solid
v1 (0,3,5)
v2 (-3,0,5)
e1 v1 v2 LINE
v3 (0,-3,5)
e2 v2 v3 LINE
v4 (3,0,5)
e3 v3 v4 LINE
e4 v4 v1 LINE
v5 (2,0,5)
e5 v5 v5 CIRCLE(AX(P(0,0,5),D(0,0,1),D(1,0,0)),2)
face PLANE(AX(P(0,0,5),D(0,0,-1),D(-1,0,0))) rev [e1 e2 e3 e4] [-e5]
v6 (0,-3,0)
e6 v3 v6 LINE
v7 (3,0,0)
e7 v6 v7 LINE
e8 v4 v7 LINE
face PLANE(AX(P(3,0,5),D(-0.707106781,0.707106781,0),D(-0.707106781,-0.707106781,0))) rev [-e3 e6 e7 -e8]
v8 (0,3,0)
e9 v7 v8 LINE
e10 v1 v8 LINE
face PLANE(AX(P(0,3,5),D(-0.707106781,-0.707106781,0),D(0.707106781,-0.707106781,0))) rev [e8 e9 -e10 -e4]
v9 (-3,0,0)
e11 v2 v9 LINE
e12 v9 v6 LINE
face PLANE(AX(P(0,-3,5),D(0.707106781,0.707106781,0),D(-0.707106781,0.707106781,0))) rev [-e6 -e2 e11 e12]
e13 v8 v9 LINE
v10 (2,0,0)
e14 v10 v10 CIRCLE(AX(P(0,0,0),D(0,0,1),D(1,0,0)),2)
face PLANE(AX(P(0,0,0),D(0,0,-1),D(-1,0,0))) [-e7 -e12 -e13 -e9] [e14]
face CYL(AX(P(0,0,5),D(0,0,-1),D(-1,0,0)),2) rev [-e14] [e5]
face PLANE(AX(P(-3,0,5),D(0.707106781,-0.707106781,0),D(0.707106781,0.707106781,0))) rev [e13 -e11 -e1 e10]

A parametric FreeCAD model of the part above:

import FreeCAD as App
import Part
import Sketcher
from FreeCAD import Vector
Q = App.Units.Quantity

doc = App.newDocument("Part")
body = doc.addObject("PartDesign::Body", "Body")

# Sketch on XY plane
sketch1 = body.newObject("Sketcher::SketchObject", "Sketch")
sketch1.AttachmentSupport = (doc.getObject("XY_Plane"), [""])
sketch1.MapMode = "FlatFace"
sketch1.addGeometry([
    Part.LineSegment(Vector(3, 0, 0), Vector(0, 3, 0)),  # 0
    Part.LineSegment(Vector(0, 3, 0), Vector(-3, 0, 0)),  # 1
    Part.LineSegment(Vector(-3, 0, 0), Vector(0, -3, 0)),  # 2
    Part.LineSegment(Vector(0, -3, 0), Vector(3, 0, 0)),  # 3
    Part.Circle(Vector(0, 0, 0), Vector(0, 0, 1), 2),  # 4
], False)
sketch1.addConstraint([
    Sketcher.Constraint("Coincident", 0, 2, 1, 1),
    Sketcher.Constraint("Coincident", 1, 2, 2, 1),
    Sketcher.Constraint("Coincident", 2, 2, 3, 1),
    Sketcher.Constraint("Coincident", 3, 2, 0, 1),
    Sketcher.Constraint("Coincident", 4, 3, -1, 1),
    Sketcher.Constraint("Symmetric", 0, 2, 2, 2, -1, 1),
    Sketcher.Constraint("Symmetric", 1, 2, 3, 2, -1, 1),
    Sketcher.Constraint("PointOnObject", 0, 2, -2),
    Sketcher.Constraint("PointOnObject", 1, 2, -1),
    Sketcher.Constraint("Perpendicular", 0, 1),
    Sketcher.Constraint("Diameter", 4, Q("4 mm")),
    Sketcher.Constraint("DistanceY", -1, 1, 0, 2, Q("3 mm")),
])
pad1 = body.newObject("PartDesign::Pad", "Pad")
pad1.Profile = sketch1
pad1.Length = 5

doc.recompute()
